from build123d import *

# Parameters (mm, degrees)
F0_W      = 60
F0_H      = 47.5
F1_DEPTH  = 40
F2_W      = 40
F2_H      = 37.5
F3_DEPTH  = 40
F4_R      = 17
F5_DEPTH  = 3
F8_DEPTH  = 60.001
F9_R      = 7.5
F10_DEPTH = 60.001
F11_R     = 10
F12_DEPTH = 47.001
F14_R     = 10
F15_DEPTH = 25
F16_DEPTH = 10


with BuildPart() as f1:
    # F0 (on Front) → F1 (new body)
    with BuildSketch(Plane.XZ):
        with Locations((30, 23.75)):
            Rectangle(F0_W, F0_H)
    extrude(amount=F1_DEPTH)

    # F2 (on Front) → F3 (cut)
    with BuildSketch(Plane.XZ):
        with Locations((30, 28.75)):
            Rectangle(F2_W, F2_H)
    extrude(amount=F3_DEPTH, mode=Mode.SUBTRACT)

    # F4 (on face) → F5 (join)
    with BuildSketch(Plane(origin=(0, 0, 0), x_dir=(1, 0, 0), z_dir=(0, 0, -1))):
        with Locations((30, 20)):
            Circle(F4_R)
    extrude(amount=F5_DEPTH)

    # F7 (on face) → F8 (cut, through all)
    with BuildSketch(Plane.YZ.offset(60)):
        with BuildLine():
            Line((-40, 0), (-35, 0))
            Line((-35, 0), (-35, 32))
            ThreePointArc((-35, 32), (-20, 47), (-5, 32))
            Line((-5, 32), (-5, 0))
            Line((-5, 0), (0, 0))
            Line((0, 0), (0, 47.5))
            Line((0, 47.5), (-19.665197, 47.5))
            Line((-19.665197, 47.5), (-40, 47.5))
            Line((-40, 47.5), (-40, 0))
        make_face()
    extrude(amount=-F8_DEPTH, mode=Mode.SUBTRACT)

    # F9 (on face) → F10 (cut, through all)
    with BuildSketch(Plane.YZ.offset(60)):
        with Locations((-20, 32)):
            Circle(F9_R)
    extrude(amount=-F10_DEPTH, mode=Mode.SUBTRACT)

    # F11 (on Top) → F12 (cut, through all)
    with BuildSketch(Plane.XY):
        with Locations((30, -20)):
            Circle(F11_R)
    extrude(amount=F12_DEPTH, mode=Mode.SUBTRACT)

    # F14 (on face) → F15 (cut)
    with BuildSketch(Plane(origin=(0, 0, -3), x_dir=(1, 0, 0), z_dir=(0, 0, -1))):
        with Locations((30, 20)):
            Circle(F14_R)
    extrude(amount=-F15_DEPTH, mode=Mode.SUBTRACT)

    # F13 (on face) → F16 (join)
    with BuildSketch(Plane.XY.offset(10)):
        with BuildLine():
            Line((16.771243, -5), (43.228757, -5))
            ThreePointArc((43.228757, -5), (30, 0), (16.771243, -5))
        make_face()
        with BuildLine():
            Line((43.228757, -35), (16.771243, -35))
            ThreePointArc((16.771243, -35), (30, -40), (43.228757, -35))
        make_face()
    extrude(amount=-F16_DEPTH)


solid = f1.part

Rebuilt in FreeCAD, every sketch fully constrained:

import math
import FreeCAD as App
import Part
import Sketcher


def add_polygon(sketch, points):
    """Adds a closed chain of lines whose ends are joined by coincident constraints."""
    first, n = sketch.GeometryCount, len(points)
    for a, b in zip(points, points[1:] + points[:1]):
        sketch.addGeometry(Part.LineSegment(App.Vector(*a, 0), App.Vector(*b, 0)), False)
    for i in range(n):
        sketch.addConstraint(Sketcher.Constraint("Coincident", first + i, 2, first + (i + 1) % n, 1))

doc = App.newDocument("Part")
body = doc.addObject("PartDesign::Body", "Body")

# Sketch on XZ plane
sketch1 = body.newObject("Sketcher::SketchObject", "Sketch")
sketch1.AttachmentSupport = (doc.getObject("XZ_Plane"), [""])
sketch1.MapMode = "FlatFace"
add_polygon(sketch1, [(0, 47.5), (0, 0), (60, 0), (60, 47.5)])  # lines 0-3
sketch1.addConstraint([
    Sketcher.Constraint("Vertical", 0),
    Sketcher.Constraint("Horizontal", 1),
    Sketcher.Constraint("Vertical", 2),
    Sketcher.Constraint("Horizontal", 3),
    Sketcher.Constraint("Coincident", 0, 2, -1, 1),
    Sketcher.Constraint("DistanceX", 1, 1, 1, 2, 60.0),
    Sketcher.Constraint("DistanceY", 0, 2, 0, 1, 47.5),
])
pad1 = body.newObject("PartDesign::Pad", "Pad")
pad1.Profile = sketch1
pad1.Length = 40

# Sketch on XZ plane
sketch2 = body.newObject("Sketcher::SketchObject", "Sketch001")
sketch2.AttachmentSupport = (doc.getObject("XZ_Plane"), [""])
sketch2.MapMode = "FlatFace"
add_polygon(sketch2, [(10, 47.5), (10, 10), (50, 10), (50, 47.5)])  # lines 0-3
sketch2.addConstraint([
    Sketcher.Constraint("Vertical", 0),
    Sketcher.Constraint("Horizontal", 1),
    Sketcher.Constraint("Vertical", 2),
    Sketcher.Constraint("Horizontal", 3),
    Sketcher.Constraint("DistanceX", 1, 1, 1, 2, 40.0),
    Sketcher.Constraint("DistanceY", 0, 2, 0, 1, 37.5),
    Sketcher.Constraint("DistanceX", -1, 1, 0, 2, 10.0),
    Sketcher.Constraint("DistanceY", -1, 1, 0, 2, 10.0),
])
pocket1 = body.newObject("PartDesign::Pocket", "Pocket")
pocket1.Profile = sketch2
pocket1.Length = 40
pocket1.Reversed = True

# Sketch on XY plane
sketch3 = body.newObject("Sketcher::SketchObject", "Sketch002")
sketch3.AttachmentSupport = (doc.getObject("XY_Plane"), [""])
sketch3.MapMode = "FlatFace"
sketch3.addGeometry(Part.Circle(App.Vector(30, -20, 0), App.Vector(0, 0, 1), 17), False)
sketch3.addConstraint([
    Sketcher.Constraint("Diameter", 0, 34.0),
    Sketcher.Constraint("DistanceX", -1, 1, 0, 3, 30.0),
    Sketcher.Constraint("DistanceY", 0, 3, -1, 1, 20.0),
])
pad2 = body.newObject("PartDesign::Pad", "Pad001")
pad2.Profile = sketch3
pad2.Length = 3
pad2.Reversed = True

# Sketch on YZ plane
sketch4 = body.newObject("Sketcher::SketchObject", "Sketch003")
sketch4.AttachmentSupport = (doc.getObject("YZ_Plane"), [""])
sketch4.MapMode = "FlatFace"
sketch4.AttachmentOffset = App.Placement(App.Vector(0, 0, 60), App.Rotation())
sketch4.addGeometry([
    Part.LineSegment(App.Vector(-40, 0, 0), App.Vector(-35, 0, 0)),  # 0
    Part.LineSegment(App.Vector(-35, 0, 0), App.Vector(-35, 32, 0)),  # 1
    Part.ArcOfCircle(Part.Circle(App.Vector(-20, 32, 0), App.Vector(0, 0, 1), 15), math.radians(0), math.radians(180)),  # 2
    Part.LineSegment(App.Vector(-5, 32, 0), App.Vector(-5, 0, 0)),  # 3
    Part.LineSegment(App.Vector(-5, 0, 0), App.Vector(0, 0, 0)),  # 4
    Part.LineSegment(App.Vector(0, 0, 0), App.Vector(0, 47.5, 0)),  # 5
    Part.LineSegment(App.Vector(0, 47.5, 0), App.Vector(-40, 47.5, 0)),  # 6
    Part.LineSegment(App.Vector(-40, 47.5, 0), App.Vector(-40, 0, 0)),  # 7
], False)
sketch4.addConstraint([
    Sketcher.Constraint("Coincident", 0, 2, 1, 1),
    Sketcher.Constraint("Tangent", 1, 2, 2, 2),
    Sketcher.Constraint("Tangent", 2, 1, 3, 1),
    Sketcher.Constraint("Coincident", 3, 2, 4, 1),
    Sketcher.Constraint("Coincident", 4, 2, 5, 1),
    Sketcher.Constraint("Coincident", 5, 2, 6, 1),
    Sketcher.Constraint("Coincident", 6, 2, 7, 1),
    Sketcher.Constraint("Coincident", 7, 2, 0, 1),
    Sketcher.Constraint("Horizontal", 0),
    Sketcher.Constraint("Vertical", 1),
    Sketcher.Constraint("Vertical", 3),
    Sketcher.Constraint("Horizontal", 4),
    Sketcher.Constraint("Vertical", 5),
    Sketcher.Constraint("Horizontal", 6),
    Sketcher.Constraint("Vertical", 7),
    Sketcher.Constraint("Coincident", 4, 2, -1, 1),
    Sketcher.Constraint("PointOnObject", 0, 2, -1),
    Sketcher.Constraint("Equal", 0, 4),
    Sketcher.Constraint("Radius", 2, 15.0),
    Sketcher.Constraint("DistanceX", 0, 1, 0, 2, 5.0),
    Sketcher.Constraint("DistanceY", 1, 1, 1, 2, 32.0),
    Sketcher.Constraint("DistanceY", 5, 1, 5, 2, 47.5),
])
pocket2 = body.newObject("PartDesign::Pocket", "Pocket001")
pocket2.Profile = sketch4
pocket2.Type = "ThroughAll"

# Sketch on YZ plane
sketch5 = body.newObject("Sketcher::SketchObject", "Sketch004")
sketch5.AttachmentSupport = (doc.getObject("YZ_Plane"), [""])
sketch5.MapMode = "FlatFace"
sketch5.AttachmentOffset = App.Placement(App.Vector(0, 0, 60), App.Rotation())
sketch5.addGeometry(Part.Circle(App.Vector(-20, 32, 0), App.Vector(0, 0, 1), 7.5), False)
sketch5.addConstraint([
    Sketcher.Constraint("Diameter", 0, 15.0),
    Sketcher.Constraint("DistanceX", 0, 3, -1, 1, 20.0),
    Sketcher.Constraint("DistanceY", -1, 1, 0, 3, 32.0),
])
pocket3 = body.newObject("PartDesign::Pocket", "Pocket002")
pocket3.Profile = sketch5
pocket3.Type = "ThroughAll"

# Sketch on XY plane
sketch6 = body.newObject("Sketcher::SketchObject", "Sketch005")
sketch6.AttachmentSupport = (doc.getObject("XY_Plane"), [""])
sketch6.MapMode = "FlatFace"
sketch6.addGeometry(Part.Circle(App.Vector(30, -20, 0), App.Vector(0, 0, 1), 10), False)
sketch6.addConstraint([
    Sketcher.Constraint("Diameter", 0, 20.0),
    Sketcher.Constraint("DistanceX", -1, 1, 0, 3, 30.0),
    Sketcher.Constraint("DistanceY", 0, 3, -1, 1, 20.0),
])
pocket4 = body.newObject("PartDesign::Pocket", "Pocket003")
pocket4.Profile = sketch6
pocket4.Type = "ThroughAll"
pocket4.Reversed = True

# Sketch on XY plane
sketch7 = body.newObject("Sketcher::SketchObject", "Sketch006")
sketch7.AttachmentSupport = (doc.getObject("XY_Plane"), [""])
sketch7.MapMode = "FlatFace"
sketch7.AttachmentOffset = App.Placement(App.Vector(0, 0, -3), App.Rotation())
sketch7.addGeometry(Part.Circle(App.Vector(30, -20, 0), App.Vector(0, 0, 1), 10), False)
sketch7.addConstraint([
    Sketcher.Constraint("Diameter", 0, 20.0),
    Sketcher.Constraint("DistanceX", -1, 1, 0, 3, 30.0),
    Sketcher.Constraint("DistanceY", 0, 3, -1, 1, 20.0),
])
pocket5 = body.newObject("PartDesign::Pocket", "Pocket004")
pocket5.Profile = sketch7
pocket5.Length = 25
pocket5.Reversed = True

# Sketch on XY plane
sketch8 = body.newObject("Sketcher::SketchObject", "Sketch007")
sketch8.AttachmentSupport = (doc.getObject("XY_Plane"), [""])
sketch8.MapMode = "FlatFace"
sketch8.AttachmentOffset = App.Placement(App.Vector(0, 0, 10), App.Rotation())
sketch8.addGeometry([
    Part.LineSegment(App.Vector(16.771243, -5, 0), App.Vector(43.228757, -5, 0)),
    Part.ArcOfCircle(Part.Circle(App.Vector(30, -20.000001, 0), App.Vector(0, 0, 1), 20.000001), math.radians(48.590379), math.radians(131.409621)),
    Part.LineSegment(App.Vector(43.228757, -35, 0), App.Vector(16.771243, -35, 0)),
    Part.ArcOfCircle(Part.Circle(App.Vector(30, -19.999999, 0), App.Vector(0, 0, 1), 20.000001), math.radians(-131.409621), math.radians(-48.590379)),
], False)
sketch8.addConstraint([
    Sketcher.Constraint("Coincident", 0, 1, 1, 2),
    Sketcher.Constraint("Coincident", 1, 1, 0, 2),
    Sketcher.Constraint("Coincident", 2, 1, 3, 2),
    Sketcher.Constraint("Coincident", 3, 1, 2, 2),
    Sketcher.Constraint("Horizontal", 0),
    Sketcher.Constraint("Horizontal", 2),
    Sketcher.Constraint("Coincident", 3, 3, 1, 3),
    Sketcher.Constraint("Equal", 1, 3),
    Sketcher.Constraint("Vertical", 1, 1, 2, 1),
    Sketcher.Constraint("Radius", 1, 20.000001),
    Sketcher.Constraint("DistanceX", -1, 1, 1, 3, 30.0),
    Sketcher.Constraint("DistanceY", 1, 3, -1, 1, 20.000001),
    Sketcher.Constraint("DistanceY", 0, 1, -1, 1, 5.0),
])
pad3 = body.newObject("PartDesign::Pad", "Pad002")
pad3.Profile = sketch8
pad3.Length = 10
pad3.Reversed = True

doc.recompute()
